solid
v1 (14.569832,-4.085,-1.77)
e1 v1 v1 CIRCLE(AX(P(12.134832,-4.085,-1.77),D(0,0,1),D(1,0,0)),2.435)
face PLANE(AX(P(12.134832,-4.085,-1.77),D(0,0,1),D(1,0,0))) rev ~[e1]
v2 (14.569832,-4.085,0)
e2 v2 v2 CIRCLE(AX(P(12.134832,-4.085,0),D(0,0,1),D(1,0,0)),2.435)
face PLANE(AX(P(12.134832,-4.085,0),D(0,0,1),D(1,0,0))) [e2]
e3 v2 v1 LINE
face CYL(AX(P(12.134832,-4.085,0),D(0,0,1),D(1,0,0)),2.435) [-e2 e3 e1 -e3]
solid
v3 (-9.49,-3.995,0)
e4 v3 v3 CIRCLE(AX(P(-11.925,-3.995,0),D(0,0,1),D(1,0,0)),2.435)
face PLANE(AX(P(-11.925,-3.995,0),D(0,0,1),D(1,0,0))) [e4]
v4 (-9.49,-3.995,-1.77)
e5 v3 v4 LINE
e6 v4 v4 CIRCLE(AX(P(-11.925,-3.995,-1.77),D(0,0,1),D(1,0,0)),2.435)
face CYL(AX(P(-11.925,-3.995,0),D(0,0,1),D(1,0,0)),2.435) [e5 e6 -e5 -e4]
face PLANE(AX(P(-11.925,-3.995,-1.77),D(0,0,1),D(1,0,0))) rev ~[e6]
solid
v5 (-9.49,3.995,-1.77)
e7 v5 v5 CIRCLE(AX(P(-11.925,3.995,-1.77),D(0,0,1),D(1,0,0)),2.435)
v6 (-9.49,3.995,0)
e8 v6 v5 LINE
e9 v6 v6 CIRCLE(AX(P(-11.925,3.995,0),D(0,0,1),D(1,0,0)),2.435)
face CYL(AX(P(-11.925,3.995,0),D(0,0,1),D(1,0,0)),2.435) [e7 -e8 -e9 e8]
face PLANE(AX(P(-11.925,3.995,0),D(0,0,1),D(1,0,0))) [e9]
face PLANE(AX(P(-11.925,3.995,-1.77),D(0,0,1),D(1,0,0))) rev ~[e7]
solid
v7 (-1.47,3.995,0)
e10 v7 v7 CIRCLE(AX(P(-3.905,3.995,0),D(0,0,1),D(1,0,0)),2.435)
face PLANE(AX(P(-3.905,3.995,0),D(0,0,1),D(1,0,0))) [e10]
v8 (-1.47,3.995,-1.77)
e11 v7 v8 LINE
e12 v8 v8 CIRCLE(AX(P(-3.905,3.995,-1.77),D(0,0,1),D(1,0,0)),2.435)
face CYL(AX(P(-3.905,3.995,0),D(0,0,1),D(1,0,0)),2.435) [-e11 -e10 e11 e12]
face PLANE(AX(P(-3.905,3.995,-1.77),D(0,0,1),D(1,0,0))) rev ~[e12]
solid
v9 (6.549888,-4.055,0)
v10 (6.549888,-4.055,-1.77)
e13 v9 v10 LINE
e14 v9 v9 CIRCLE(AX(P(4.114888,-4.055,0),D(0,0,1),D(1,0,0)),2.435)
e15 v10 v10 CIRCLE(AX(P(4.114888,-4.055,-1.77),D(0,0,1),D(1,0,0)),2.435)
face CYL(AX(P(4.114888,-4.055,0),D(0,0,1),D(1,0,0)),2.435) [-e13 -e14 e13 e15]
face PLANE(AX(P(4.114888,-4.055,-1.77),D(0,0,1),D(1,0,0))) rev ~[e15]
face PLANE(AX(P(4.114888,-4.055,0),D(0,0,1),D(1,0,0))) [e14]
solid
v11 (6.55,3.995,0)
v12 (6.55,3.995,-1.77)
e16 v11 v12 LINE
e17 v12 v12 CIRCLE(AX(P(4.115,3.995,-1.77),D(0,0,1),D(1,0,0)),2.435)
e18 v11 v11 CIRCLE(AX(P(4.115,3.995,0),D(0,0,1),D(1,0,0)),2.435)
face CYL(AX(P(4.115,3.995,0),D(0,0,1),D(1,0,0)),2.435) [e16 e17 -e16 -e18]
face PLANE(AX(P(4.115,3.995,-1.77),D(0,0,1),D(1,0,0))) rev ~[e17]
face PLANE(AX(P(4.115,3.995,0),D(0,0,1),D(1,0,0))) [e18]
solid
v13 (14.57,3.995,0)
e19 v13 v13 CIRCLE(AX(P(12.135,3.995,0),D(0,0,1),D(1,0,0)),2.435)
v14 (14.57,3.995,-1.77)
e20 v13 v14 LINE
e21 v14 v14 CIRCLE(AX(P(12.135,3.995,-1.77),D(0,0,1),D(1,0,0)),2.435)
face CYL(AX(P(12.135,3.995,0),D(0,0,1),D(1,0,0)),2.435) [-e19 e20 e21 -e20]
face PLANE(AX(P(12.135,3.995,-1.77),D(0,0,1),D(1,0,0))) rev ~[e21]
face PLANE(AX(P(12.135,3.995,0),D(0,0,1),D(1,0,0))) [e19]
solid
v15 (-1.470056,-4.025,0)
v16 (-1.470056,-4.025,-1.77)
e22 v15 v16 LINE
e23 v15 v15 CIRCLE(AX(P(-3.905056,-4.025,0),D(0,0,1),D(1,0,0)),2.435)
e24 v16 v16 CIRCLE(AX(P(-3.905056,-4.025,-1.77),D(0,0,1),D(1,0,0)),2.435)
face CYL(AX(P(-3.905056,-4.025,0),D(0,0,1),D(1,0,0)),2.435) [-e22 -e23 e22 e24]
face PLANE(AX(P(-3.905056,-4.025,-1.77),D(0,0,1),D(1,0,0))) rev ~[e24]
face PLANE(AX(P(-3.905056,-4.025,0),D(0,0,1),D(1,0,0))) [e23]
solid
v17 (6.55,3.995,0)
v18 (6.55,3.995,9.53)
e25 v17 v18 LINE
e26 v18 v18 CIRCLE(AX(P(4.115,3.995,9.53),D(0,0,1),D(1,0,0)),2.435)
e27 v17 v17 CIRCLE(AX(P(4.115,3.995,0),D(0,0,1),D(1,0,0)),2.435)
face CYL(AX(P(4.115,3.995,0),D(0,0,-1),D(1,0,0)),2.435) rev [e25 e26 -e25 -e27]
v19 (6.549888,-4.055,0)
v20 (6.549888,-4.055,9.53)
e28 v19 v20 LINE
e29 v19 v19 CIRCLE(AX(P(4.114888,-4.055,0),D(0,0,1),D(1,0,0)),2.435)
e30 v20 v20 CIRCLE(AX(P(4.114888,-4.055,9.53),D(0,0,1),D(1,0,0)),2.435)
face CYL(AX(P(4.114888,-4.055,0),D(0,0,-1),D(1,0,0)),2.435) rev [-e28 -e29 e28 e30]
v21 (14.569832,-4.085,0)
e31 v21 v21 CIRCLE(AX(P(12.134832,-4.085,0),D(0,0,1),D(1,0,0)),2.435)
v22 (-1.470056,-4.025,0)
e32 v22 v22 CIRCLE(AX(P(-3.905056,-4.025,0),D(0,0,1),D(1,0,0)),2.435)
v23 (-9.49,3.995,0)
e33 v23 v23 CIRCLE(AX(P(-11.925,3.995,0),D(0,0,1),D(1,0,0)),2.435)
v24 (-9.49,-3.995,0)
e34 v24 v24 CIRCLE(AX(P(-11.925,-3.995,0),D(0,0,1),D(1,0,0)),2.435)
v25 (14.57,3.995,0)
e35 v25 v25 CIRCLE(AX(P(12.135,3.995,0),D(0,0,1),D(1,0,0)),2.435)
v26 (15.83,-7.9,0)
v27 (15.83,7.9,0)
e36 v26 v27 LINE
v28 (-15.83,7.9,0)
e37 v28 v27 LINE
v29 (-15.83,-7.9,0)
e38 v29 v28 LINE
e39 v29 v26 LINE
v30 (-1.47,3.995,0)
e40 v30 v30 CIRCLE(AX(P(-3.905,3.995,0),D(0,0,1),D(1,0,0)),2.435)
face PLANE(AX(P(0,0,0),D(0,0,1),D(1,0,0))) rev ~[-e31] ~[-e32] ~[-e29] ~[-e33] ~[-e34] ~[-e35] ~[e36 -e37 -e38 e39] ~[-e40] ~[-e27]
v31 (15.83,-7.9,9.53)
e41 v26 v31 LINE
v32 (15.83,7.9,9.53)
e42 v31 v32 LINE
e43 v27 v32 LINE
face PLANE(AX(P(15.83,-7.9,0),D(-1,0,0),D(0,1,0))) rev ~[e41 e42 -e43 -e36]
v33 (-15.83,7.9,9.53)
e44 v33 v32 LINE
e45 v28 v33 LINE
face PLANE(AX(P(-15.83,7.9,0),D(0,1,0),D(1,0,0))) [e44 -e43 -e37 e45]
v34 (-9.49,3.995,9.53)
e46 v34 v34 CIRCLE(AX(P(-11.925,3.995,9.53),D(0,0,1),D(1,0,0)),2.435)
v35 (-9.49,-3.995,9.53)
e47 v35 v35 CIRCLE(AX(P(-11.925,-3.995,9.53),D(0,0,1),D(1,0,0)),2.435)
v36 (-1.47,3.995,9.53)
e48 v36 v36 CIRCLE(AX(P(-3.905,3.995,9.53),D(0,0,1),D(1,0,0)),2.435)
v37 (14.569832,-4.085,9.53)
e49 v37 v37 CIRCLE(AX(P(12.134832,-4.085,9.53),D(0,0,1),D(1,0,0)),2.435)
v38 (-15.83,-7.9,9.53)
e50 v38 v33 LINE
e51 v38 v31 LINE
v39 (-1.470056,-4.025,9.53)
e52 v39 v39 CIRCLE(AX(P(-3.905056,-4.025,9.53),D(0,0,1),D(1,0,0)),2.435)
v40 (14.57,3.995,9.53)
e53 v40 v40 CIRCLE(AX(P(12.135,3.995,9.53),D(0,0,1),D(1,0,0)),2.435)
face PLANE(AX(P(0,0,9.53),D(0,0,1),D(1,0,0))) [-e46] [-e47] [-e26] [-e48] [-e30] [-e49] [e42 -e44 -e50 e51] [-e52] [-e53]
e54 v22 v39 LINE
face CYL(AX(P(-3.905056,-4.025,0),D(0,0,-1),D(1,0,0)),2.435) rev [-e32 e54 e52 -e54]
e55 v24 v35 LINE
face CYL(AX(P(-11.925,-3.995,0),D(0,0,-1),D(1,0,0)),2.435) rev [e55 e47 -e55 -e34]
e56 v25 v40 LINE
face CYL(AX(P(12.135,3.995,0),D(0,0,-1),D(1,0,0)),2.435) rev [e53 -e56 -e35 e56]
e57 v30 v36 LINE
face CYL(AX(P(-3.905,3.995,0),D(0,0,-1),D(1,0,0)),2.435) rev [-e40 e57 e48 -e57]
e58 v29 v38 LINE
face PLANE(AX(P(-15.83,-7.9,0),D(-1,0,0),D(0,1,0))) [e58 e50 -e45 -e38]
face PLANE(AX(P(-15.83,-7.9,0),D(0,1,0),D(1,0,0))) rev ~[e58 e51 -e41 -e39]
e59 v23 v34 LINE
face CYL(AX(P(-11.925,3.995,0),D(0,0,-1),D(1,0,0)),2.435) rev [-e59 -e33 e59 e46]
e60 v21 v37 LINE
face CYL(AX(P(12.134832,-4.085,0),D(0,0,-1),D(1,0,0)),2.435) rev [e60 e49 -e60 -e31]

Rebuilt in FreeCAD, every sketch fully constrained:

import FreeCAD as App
import Part
import Sketcher

doc = App.newDocument("Part")
body = doc.addObject("PartDesign::Body", "Body")
body.AllowCompound = True

sketch1 = body.newObject("Sketcher::SketchObject", "Sketch")
sketch1.AttachmentSupport = (doc.getObject("XY_Plane"), [""])
sketch1.MapMode = "FlatFace"
sketch1.addGeometry([
    Part.Circle(App.Vector(-11.9, 4, 0), App.Vector(0, 0, 1), 2.4),
    Part.Circle(App.Vector(-3.9, 4, 0), App.Vector(0, 0, 1), 2.4),
    Part.Circle(App.Vector(-11.9, -4, 0), App.Vector(0, 0, 1), 2.4),
    Part.Circle(App.Vector(-3.9, -4, 0), App.Vector(0, 0, 1), 2.4),
    Part.Circle(App.Vector(4.1, -4.1, 0), App.Vector(0, 0, 1), 2.4),
    Part.Circle(App.Vector(4.1, 4, 0), App.Vector(0, 0, 1), 2.4),
    Part.Circle(App.Vector(12.1, 4, 0), App.Vector(0, 0, 1), 2.4),
    Part.Circle(App.Vector(12.1, -4.1, 0), App.Vector(0, 0, 1), 2.4),
], False)
sketch1.addConstraint([
    Sketcher.Constraint("Equal", 0, 1),
    Sketcher.Constraint("Equal", 1, 2),
    Sketcher.Constraint("Equal", 2, 3),
    Sketcher.Constraint("Equal", 3, 4),
    Sketcher.Constraint("Equal", 4, 5),
    Sketcher.Constraint("Equal", 5, 6),
    Sketcher.Constraint("Equal", 6, 7),
    Sketcher.Constraint("Symmetric", 0, 3, 2, 3, -1),
    Sketcher.Constraint("Horizontal", 0, 3, 1, 3),
    Sketcher.Constraint("Horizontal", 1, 3, 5, 3),
    Sketcher.Constraint("Horizontal", 5, 3, 6, 3),
    Sketcher.Constraint("Diameter", 0, 4.87),
    Sketcher.Constraint("DistanceX", 0, 3, 1, 3, 8.02),
    Sketcher.Constraint("DistanceY", 2, 3, 0, 3, 7.99),
    Sketcher.Constraint("DistanceY", 3, 3, 1, 3, 8.02),
    Sketcher.Constraint("DistanceY", 4, 3, 3, 3, 0.03),
    Sketcher.Constraint("DistanceX", 1, 3, 5, 3, 8.02),
    Sketcher.Constraint("DistanceX", 5, 3, 6, 3, 8.02),
    Sketcher.Constraint("DistanceY", 7, 3, 4, 3, 0.03),
    Sketcher.Constraint("DistanceX", 0, 3, -1, 1, 11.925),
    Sketcher.Constraint("DistanceX", 2, 3, 4, 3, 16.039888),
    Sketcher.Constraint("DistanceX", 7, 3, 6, 3, 0.000168),
    Sketcher.Constraint("DistanceX", 3, 3, -1, 1, 3.905056),
])
pad1 = body.newObject("PartDesign::Pad", "Pad")
pad1.Profile = sketch1
pad1.Length = 1.77
pad1.Reversed = True
body2 = doc.addObject("PartDesign::Body", "Body001")

sketch2 = body2.newObject("Sketcher::SketchObject", "Sketch001")
sketch2.AttachmentSupport = (doc.getObject("XY_Plane001"), [""])
sketch2.MapMode = "FlatFace"
sketch2.addGeometry([
    Part.LineSegment(App.Vector(-15.8, 7.9, 0), App.Vector(-15.8, -7.9, 0)),
    Part.LineSegment(App.Vector(-15.8, -7.9, 0), App.Vector(15.8, -7.9, 0)),
    Part.LineSegment(App.Vector(15.8, -7.9, 0), App.Vector(15.8, 7.9, 0)),
    Part.LineSegment(App.Vector(15.8, 7.9, 0), App.Vector(-15.8, 7.9, 0)),
    Part.Circle(App.Vector(-11.9, -4, 0), App.Vector(0, 0, 1), 2.4),
    Part.Circle(App.Vector(-3.9, -4, 0), App.Vector(0, 0, 1), 2.4),
    Part.Circle(App.Vector(4.1, -4.1, 0), App.Vector(0, 0, 1), 2.4),
    Part.Circle(App.Vector(12.1, -4.1, 0), App.Vector(0, 0, 1), 2.4),
    Part.Circle(App.Vector(-11.9, 4, 0), App.Vector(0, 0, 1), 2.4),
    Part.Circle(App.Vector(-3.9, 4, 0), App.Vector(0, 0, 1), 2.4),
    Part.Circle(App.Vector(4.1, 4, 0), App.Vector(0, 0, 1), 2.4),
    Part.Circle(App.Vector(12.1, 4, 0), App.Vector(0, 0, 1), 2.4),
], False)
sketch2.addConstraint([
    Sketcher.Constraint("Coincident", 0, 2, 1, 1),
    Sketcher.Constraint("Coincident", 1, 2, 2, 1),
    Sketcher.Constraint("Coincident", 2, 2, 3, 1),
    Sketcher.Constraint("Coincident", 3, 2, 0, 1),
    Sketcher.Constraint("Vertical", 0),
    Sketcher.Constraint("Horizontal", 1),
    Sketcher.Constraint("Vertical", 2),
    Sketcher.Constraint("Horizontal", 3),
    Sketcher.Constraint("Equal", 4, 5),
    Sketcher.Constraint("Equal", 5, 6),
    Sketcher.Constraint("Equal", 6, 7),
    Sketcher.Constraint("Equal", 7, 8),
    Sketcher.Constraint("Equal", 8, 9),
    Sketcher.Constraint("Equal", 9, 10),
    Sketcher.Constraint("Equal", 10, 11),
    Sketcher.Constraint("Symmetric", 0, 2, 2, 2, -1, 1),
    Sketcher.Constraint("Symmetric", 4, 3, 8, 3, -1),
    Sketcher.Constraint("Horizontal", 8, 3, 9, 3),
    Sketcher.Constraint("Horizontal", 9, 3, 10, 3),
    Sketcher.Constraint("Horizontal", 10, 3, 11, 3),
    Sketcher.Constraint("Diameter", 4, 4.87),
    Sketcher.Constraint("DistanceY", 0, 2, 0, 1, 15.8),
    Sketcher.Constraint("DistanceX", 1, 1, 1, 2, 31.66),
    Sketcher.Constraint("DistanceY", 5, 3, 4, 3, 0.03),
    Sketcher.Constraint("DistanceY", 6, 3, 5, 3, 0.03),
    Sketcher.Constraint("DistanceY", 7, 3, 6, 3, 0.03),
    Sketcher.Constraint("DistanceY", 4, 3, 8, 3, 7.99),
    Sketcher.Constraint("DistanceX", 8, 3, 9, 3, 8.02),
    Sketcher.Constraint("DistanceX", 9, 3, 10, 3, 8.02),
    Sketcher.Constraint("DistanceX", 10, 3, 11, 3, 8.02),
    Sketcher.Constraint("DistanceX", 4, 3, -1, 1, 11.925),
    Sketcher.Constraint("DistanceX", 4, 3, 6, 3, 16.039888),
    Sketcher.Constraint("DistanceX", 4, 3, 7, 3, 24.059832),
    Sketcher.Constraint("DistanceX", 5, 3, -1, 1, 3.905056),
])
pad2 = body2.newObject("PartDesign::Pad", "Pad001")
pad2.Profile = sketch2
pad2.Length = 9.53

doc.recompute()
